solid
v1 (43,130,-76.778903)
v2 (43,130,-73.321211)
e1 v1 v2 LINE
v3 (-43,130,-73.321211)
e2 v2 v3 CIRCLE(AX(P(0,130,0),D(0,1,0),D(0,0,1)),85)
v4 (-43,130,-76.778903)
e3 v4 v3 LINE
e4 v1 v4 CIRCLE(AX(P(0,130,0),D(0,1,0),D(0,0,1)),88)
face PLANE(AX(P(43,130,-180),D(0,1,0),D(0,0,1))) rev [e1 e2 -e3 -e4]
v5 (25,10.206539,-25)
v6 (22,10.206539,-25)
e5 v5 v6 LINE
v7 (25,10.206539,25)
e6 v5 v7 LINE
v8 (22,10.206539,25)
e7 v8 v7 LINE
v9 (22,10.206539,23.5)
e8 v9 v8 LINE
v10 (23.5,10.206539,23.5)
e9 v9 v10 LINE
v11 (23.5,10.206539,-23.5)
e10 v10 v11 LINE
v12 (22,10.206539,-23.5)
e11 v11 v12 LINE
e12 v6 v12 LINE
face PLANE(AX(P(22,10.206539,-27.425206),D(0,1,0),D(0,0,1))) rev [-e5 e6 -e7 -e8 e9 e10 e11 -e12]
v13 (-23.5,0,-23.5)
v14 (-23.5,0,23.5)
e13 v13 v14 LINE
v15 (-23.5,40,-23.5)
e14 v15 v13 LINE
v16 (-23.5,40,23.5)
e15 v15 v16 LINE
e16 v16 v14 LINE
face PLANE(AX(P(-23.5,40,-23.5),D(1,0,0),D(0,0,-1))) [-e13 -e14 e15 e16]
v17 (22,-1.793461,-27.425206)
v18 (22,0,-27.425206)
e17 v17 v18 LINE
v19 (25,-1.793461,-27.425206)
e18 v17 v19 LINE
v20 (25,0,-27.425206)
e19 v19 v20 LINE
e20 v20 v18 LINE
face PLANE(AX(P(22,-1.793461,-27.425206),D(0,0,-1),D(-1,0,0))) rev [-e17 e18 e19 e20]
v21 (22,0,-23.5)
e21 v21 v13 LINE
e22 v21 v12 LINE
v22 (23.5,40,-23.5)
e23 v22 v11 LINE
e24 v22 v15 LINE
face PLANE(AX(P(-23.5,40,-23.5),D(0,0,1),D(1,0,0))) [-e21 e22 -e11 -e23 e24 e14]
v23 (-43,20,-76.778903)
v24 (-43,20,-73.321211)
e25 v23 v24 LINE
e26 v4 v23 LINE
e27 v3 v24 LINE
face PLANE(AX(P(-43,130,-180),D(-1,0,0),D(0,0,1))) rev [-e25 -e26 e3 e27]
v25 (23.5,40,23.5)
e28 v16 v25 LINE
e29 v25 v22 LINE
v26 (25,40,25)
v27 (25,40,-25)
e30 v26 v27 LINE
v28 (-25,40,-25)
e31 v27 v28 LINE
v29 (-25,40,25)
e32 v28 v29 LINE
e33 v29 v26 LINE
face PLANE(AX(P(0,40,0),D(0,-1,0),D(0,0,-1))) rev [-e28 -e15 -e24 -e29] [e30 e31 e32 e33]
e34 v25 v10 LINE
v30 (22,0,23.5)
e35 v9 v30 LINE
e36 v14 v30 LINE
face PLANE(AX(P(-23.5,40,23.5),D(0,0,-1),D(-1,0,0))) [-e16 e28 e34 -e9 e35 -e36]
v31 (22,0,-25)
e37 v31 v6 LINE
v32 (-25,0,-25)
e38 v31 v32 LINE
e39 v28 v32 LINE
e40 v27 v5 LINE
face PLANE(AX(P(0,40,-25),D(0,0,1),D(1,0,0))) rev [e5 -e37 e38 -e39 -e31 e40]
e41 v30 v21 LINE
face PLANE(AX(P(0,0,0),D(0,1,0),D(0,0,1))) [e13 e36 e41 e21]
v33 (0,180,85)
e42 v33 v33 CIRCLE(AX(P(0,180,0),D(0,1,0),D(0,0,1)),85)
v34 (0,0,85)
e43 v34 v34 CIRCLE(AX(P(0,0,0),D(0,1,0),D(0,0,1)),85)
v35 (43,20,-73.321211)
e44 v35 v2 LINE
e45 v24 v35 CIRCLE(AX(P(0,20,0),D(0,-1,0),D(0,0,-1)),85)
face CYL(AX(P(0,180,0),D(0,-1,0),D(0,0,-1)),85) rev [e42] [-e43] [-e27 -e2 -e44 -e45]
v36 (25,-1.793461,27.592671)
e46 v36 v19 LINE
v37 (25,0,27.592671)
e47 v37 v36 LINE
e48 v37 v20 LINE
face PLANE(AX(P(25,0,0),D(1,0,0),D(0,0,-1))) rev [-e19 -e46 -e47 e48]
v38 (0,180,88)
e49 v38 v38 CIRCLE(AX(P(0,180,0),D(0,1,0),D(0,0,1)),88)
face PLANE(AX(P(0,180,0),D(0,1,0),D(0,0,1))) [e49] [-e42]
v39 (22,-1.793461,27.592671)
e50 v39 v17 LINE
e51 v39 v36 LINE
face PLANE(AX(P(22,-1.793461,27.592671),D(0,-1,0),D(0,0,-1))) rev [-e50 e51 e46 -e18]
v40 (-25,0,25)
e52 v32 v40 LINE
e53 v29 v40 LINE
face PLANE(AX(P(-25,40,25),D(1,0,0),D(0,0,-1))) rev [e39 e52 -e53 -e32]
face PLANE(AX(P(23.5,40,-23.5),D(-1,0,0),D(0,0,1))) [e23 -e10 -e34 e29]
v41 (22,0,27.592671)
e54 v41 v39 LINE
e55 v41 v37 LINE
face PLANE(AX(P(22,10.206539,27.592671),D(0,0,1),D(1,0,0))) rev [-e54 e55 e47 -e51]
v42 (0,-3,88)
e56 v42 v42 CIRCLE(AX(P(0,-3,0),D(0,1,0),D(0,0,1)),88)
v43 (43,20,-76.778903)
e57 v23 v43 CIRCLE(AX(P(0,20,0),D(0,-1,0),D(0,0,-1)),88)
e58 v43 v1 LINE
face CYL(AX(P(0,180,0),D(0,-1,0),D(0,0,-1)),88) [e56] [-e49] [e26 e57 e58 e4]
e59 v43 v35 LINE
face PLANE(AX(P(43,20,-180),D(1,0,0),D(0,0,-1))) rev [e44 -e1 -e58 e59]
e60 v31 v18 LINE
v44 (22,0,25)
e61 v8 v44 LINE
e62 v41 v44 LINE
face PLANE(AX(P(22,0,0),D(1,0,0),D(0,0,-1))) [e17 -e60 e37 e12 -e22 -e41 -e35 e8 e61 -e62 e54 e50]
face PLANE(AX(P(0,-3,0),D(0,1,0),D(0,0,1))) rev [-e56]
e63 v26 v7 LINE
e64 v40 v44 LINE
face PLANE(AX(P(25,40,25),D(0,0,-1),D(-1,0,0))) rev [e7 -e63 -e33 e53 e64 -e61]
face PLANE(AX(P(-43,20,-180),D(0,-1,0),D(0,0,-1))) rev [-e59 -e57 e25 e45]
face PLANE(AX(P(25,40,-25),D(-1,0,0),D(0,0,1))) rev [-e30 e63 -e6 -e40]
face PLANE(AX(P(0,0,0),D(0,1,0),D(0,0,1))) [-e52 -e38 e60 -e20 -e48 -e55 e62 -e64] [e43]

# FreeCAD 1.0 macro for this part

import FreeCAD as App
import Part
import Sketcher

V = App.Vector


def faces_at(feature, points):
    """Names of the faces that lie closest to the given points."""
    faces = feature.Shape.Faces
    near = lambda p: min(range(len(faces)), key=lambda i: faces[i].distToShape(Part.Vertex(*p))[0])
    return sorted({f"Face{near(p) + 1}" for p in points})


def add_polygon(sketch, points):
    """Adds a closed chain of lines whose ends are joined by coincident constraints."""
    first, n = sketch.GeometryCount, len(points)
    for a, b in zip(points, points[1:] + points[:1]):
        sketch.addGeometry(Part.LineSegment(App.Vector(*a, 0), App.Vector(*b, 0)), False)
    for i in range(n):
        sketch.addConstraint(Sketcher.Constraint("Coincident", first + i, 2, first + (i + 1) % n, 1))

doc = App.newDocument("Part")
body = doc.addObject("PartDesign::Body", "Body")

sketch1 = body.newObject("Sketcher::SketchObject", "Sketch")
sketch1.AttachmentSupport = (doc.getObject("XZ_Plane"), [""])
sketch1.MapMode = "FlatFace"
sketch1.addGeometry(Part.Circle(V(0, 0, 0), V(0, 0, 1), 85), False)
sketch1.addConstraint(Sketcher.Constraint("Coincident", 0, 3, -1, 1))
sketch1.addConstraint(Sketcher.Constraint("Diameter", 0, 170.0))
pad1 = body.newObject("PartDesign::Pad", "Pad")
pad1.Profile = sketch1
pad1.Length = 180
pad1.Reversed = True
doc.recompute()

thickness = body.newObject("PartDesign::Thickness", "Thickness")
thickness.Base = (pad1, faces_at(pad1, [(0, 180, 0)]))
thickness.Value = 3
thickness.Reversed = False
thickness.Join = "Intersection"

sketch2 = body.newObject("Sketcher::SketchObject", "Sketch001")
sketch2.AttachmentSupport = (doc.getObject("XY_Plane"), [""])
sketch2.MapMode = "FlatFace"
add_polygon(sketch2, [(-43, 130), (-43, 20), (43, 20), (43, 130)])
sketch2.addConstraint(Sketcher.Constraint("Vertical", 0))
sketch2.addConstraint(Sketcher.Constraint("Horizontal", 1))
sketch2.addConstraint(Sketcher.Constraint("Vertical", 2))
sketch2.addConstraint(Sketcher.Constraint("Horizontal", 3))
sketch2.addConstraint(Sketcher.Constraint("DistanceX", 1, 1, 1, 2, 86.0))
sketch2.addConstraint(Sketcher.Constraint("DistanceY", 0, 2, 0, 1, 110.0))
sketch2.addConstraint(Sketcher.Constraint("DistanceX", 0, 2, -1, 1, 43.0))
sketch2.addConstraint(Sketcher.Constraint("DistanceY", -1, 1, 0, 2, 20.0))
pocket1 = body.newObject("PartDesign::Pocket", "Pocket")
pocket1.Profile = sketch2
pocket1.Length = 180

sketch3 = body.newObject("Sketcher::SketchObject", "Sketch002")
sketch3.AttachmentSupport = (doc.getObject("XZ_Plane"), [""])
sketch3.MapMode = "FlatFace"
add_polygon(sketch3, [(25, -25), (-25, -25), (-25, 25), (25, 25)])
add_polygon(sketch3, [(-23.5, 23.5), (-23.5, -23.5), (23.5, -23.5), (23.5, 23.5)])
sketch3.addConstraint(Sketcher.Constraint("Horizontal", 0))
sketch3.addConstraint(Sketcher.Constraint("Vertical", 1))
sketch3.addConstraint(Sketcher.Constraint("Horizontal", 2))
sketch3.addConstraint(Sketcher.Constraint("Vertical", 3))
sketch3.addConstraint(Sketcher.Constraint("Vertical", 4))
sketch3.addConstraint(Sketcher.Constraint("Horizontal", 5))
sketch3.addConstraint(Sketcher.Constraint("Vertical", 6))
sketch3.addConstraint(Sketcher.Constraint("Horizontal", 7))
sketch3.addConstraint(Sketcher.Constraint("Symmetric", 0, 2, 2, 2, -1, 1))
sketch3.addConstraint(Sketcher.Constraint("Symmetric", 4, 2, 6, 2, -1, 1))
sketch3.addConstraint(Sketcher.Constraint("Equal", 2, 1))
sketch3.addConstraint(Sketcher.Constraint("Equal", 7, 4))
sketch3.addConstraint(Sketcher.Constraint("DistanceX", 0, 2, 0, 1, 50.0))
sketch3.addConstraint(Sketcher.Constraint("DistanceX", 5, 1, 5, 2, 47.0))
pad2 = body.newObject("PartDesign::Pad", "Pad001")
pad2.Profile = sketch3
pad2.Length = 40
pad2.Reversed = True

sketch4 = body.newObject("Sketcher::SketchObject", "Sketch003")
sketch4.AttachmentSupport = (doc.getObject("YZ_Plane"), [""])
sketch4.MapMode = "FlatFace"
sketch4.AttachmentOffset = App.Placement(V(0, 0, 25), App.Rotation())
add_polygon(sketch4, [(10.206539, 27.592671), (-1.793461, 27.592671), (-1.793461, -27.425206), (10.206539, -27.425206)])
sketch4.addConstraint(Sketcher.Constraint("Horizontal", 0))
sketch4.addConstraint(Sketcher.Constraint("Vertical", 1))
sketch4.addConstraint(Sketcher.Constraint("Horizontal", 2))
sketch4.addConstraint(Sketcher.Constraint("Vertical", 3))
sketch4.addConstraint(Sketcher.Constraint("DistanceX", 0, 2, 0, 1, 12.0))
sketch4.addConstraint(Sketcher.Constraint("DistanceY", 1, 2, 1, 1, 55.017877))
sketch4.addConstraint(Sketcher.Constraint("DistanceX", 0, 2, -1, 1, 1.793461))
sketch4.addConstraint(Sketcher.Constraint("DistanceY", -1, 1, 0, 2, 27.592671))
pocket2 = body.newObject("PartDesign::Pocket", "Pocket001")
pocket2.Profile = sketch4
pocket2.Length = 3

doc.recompute()
